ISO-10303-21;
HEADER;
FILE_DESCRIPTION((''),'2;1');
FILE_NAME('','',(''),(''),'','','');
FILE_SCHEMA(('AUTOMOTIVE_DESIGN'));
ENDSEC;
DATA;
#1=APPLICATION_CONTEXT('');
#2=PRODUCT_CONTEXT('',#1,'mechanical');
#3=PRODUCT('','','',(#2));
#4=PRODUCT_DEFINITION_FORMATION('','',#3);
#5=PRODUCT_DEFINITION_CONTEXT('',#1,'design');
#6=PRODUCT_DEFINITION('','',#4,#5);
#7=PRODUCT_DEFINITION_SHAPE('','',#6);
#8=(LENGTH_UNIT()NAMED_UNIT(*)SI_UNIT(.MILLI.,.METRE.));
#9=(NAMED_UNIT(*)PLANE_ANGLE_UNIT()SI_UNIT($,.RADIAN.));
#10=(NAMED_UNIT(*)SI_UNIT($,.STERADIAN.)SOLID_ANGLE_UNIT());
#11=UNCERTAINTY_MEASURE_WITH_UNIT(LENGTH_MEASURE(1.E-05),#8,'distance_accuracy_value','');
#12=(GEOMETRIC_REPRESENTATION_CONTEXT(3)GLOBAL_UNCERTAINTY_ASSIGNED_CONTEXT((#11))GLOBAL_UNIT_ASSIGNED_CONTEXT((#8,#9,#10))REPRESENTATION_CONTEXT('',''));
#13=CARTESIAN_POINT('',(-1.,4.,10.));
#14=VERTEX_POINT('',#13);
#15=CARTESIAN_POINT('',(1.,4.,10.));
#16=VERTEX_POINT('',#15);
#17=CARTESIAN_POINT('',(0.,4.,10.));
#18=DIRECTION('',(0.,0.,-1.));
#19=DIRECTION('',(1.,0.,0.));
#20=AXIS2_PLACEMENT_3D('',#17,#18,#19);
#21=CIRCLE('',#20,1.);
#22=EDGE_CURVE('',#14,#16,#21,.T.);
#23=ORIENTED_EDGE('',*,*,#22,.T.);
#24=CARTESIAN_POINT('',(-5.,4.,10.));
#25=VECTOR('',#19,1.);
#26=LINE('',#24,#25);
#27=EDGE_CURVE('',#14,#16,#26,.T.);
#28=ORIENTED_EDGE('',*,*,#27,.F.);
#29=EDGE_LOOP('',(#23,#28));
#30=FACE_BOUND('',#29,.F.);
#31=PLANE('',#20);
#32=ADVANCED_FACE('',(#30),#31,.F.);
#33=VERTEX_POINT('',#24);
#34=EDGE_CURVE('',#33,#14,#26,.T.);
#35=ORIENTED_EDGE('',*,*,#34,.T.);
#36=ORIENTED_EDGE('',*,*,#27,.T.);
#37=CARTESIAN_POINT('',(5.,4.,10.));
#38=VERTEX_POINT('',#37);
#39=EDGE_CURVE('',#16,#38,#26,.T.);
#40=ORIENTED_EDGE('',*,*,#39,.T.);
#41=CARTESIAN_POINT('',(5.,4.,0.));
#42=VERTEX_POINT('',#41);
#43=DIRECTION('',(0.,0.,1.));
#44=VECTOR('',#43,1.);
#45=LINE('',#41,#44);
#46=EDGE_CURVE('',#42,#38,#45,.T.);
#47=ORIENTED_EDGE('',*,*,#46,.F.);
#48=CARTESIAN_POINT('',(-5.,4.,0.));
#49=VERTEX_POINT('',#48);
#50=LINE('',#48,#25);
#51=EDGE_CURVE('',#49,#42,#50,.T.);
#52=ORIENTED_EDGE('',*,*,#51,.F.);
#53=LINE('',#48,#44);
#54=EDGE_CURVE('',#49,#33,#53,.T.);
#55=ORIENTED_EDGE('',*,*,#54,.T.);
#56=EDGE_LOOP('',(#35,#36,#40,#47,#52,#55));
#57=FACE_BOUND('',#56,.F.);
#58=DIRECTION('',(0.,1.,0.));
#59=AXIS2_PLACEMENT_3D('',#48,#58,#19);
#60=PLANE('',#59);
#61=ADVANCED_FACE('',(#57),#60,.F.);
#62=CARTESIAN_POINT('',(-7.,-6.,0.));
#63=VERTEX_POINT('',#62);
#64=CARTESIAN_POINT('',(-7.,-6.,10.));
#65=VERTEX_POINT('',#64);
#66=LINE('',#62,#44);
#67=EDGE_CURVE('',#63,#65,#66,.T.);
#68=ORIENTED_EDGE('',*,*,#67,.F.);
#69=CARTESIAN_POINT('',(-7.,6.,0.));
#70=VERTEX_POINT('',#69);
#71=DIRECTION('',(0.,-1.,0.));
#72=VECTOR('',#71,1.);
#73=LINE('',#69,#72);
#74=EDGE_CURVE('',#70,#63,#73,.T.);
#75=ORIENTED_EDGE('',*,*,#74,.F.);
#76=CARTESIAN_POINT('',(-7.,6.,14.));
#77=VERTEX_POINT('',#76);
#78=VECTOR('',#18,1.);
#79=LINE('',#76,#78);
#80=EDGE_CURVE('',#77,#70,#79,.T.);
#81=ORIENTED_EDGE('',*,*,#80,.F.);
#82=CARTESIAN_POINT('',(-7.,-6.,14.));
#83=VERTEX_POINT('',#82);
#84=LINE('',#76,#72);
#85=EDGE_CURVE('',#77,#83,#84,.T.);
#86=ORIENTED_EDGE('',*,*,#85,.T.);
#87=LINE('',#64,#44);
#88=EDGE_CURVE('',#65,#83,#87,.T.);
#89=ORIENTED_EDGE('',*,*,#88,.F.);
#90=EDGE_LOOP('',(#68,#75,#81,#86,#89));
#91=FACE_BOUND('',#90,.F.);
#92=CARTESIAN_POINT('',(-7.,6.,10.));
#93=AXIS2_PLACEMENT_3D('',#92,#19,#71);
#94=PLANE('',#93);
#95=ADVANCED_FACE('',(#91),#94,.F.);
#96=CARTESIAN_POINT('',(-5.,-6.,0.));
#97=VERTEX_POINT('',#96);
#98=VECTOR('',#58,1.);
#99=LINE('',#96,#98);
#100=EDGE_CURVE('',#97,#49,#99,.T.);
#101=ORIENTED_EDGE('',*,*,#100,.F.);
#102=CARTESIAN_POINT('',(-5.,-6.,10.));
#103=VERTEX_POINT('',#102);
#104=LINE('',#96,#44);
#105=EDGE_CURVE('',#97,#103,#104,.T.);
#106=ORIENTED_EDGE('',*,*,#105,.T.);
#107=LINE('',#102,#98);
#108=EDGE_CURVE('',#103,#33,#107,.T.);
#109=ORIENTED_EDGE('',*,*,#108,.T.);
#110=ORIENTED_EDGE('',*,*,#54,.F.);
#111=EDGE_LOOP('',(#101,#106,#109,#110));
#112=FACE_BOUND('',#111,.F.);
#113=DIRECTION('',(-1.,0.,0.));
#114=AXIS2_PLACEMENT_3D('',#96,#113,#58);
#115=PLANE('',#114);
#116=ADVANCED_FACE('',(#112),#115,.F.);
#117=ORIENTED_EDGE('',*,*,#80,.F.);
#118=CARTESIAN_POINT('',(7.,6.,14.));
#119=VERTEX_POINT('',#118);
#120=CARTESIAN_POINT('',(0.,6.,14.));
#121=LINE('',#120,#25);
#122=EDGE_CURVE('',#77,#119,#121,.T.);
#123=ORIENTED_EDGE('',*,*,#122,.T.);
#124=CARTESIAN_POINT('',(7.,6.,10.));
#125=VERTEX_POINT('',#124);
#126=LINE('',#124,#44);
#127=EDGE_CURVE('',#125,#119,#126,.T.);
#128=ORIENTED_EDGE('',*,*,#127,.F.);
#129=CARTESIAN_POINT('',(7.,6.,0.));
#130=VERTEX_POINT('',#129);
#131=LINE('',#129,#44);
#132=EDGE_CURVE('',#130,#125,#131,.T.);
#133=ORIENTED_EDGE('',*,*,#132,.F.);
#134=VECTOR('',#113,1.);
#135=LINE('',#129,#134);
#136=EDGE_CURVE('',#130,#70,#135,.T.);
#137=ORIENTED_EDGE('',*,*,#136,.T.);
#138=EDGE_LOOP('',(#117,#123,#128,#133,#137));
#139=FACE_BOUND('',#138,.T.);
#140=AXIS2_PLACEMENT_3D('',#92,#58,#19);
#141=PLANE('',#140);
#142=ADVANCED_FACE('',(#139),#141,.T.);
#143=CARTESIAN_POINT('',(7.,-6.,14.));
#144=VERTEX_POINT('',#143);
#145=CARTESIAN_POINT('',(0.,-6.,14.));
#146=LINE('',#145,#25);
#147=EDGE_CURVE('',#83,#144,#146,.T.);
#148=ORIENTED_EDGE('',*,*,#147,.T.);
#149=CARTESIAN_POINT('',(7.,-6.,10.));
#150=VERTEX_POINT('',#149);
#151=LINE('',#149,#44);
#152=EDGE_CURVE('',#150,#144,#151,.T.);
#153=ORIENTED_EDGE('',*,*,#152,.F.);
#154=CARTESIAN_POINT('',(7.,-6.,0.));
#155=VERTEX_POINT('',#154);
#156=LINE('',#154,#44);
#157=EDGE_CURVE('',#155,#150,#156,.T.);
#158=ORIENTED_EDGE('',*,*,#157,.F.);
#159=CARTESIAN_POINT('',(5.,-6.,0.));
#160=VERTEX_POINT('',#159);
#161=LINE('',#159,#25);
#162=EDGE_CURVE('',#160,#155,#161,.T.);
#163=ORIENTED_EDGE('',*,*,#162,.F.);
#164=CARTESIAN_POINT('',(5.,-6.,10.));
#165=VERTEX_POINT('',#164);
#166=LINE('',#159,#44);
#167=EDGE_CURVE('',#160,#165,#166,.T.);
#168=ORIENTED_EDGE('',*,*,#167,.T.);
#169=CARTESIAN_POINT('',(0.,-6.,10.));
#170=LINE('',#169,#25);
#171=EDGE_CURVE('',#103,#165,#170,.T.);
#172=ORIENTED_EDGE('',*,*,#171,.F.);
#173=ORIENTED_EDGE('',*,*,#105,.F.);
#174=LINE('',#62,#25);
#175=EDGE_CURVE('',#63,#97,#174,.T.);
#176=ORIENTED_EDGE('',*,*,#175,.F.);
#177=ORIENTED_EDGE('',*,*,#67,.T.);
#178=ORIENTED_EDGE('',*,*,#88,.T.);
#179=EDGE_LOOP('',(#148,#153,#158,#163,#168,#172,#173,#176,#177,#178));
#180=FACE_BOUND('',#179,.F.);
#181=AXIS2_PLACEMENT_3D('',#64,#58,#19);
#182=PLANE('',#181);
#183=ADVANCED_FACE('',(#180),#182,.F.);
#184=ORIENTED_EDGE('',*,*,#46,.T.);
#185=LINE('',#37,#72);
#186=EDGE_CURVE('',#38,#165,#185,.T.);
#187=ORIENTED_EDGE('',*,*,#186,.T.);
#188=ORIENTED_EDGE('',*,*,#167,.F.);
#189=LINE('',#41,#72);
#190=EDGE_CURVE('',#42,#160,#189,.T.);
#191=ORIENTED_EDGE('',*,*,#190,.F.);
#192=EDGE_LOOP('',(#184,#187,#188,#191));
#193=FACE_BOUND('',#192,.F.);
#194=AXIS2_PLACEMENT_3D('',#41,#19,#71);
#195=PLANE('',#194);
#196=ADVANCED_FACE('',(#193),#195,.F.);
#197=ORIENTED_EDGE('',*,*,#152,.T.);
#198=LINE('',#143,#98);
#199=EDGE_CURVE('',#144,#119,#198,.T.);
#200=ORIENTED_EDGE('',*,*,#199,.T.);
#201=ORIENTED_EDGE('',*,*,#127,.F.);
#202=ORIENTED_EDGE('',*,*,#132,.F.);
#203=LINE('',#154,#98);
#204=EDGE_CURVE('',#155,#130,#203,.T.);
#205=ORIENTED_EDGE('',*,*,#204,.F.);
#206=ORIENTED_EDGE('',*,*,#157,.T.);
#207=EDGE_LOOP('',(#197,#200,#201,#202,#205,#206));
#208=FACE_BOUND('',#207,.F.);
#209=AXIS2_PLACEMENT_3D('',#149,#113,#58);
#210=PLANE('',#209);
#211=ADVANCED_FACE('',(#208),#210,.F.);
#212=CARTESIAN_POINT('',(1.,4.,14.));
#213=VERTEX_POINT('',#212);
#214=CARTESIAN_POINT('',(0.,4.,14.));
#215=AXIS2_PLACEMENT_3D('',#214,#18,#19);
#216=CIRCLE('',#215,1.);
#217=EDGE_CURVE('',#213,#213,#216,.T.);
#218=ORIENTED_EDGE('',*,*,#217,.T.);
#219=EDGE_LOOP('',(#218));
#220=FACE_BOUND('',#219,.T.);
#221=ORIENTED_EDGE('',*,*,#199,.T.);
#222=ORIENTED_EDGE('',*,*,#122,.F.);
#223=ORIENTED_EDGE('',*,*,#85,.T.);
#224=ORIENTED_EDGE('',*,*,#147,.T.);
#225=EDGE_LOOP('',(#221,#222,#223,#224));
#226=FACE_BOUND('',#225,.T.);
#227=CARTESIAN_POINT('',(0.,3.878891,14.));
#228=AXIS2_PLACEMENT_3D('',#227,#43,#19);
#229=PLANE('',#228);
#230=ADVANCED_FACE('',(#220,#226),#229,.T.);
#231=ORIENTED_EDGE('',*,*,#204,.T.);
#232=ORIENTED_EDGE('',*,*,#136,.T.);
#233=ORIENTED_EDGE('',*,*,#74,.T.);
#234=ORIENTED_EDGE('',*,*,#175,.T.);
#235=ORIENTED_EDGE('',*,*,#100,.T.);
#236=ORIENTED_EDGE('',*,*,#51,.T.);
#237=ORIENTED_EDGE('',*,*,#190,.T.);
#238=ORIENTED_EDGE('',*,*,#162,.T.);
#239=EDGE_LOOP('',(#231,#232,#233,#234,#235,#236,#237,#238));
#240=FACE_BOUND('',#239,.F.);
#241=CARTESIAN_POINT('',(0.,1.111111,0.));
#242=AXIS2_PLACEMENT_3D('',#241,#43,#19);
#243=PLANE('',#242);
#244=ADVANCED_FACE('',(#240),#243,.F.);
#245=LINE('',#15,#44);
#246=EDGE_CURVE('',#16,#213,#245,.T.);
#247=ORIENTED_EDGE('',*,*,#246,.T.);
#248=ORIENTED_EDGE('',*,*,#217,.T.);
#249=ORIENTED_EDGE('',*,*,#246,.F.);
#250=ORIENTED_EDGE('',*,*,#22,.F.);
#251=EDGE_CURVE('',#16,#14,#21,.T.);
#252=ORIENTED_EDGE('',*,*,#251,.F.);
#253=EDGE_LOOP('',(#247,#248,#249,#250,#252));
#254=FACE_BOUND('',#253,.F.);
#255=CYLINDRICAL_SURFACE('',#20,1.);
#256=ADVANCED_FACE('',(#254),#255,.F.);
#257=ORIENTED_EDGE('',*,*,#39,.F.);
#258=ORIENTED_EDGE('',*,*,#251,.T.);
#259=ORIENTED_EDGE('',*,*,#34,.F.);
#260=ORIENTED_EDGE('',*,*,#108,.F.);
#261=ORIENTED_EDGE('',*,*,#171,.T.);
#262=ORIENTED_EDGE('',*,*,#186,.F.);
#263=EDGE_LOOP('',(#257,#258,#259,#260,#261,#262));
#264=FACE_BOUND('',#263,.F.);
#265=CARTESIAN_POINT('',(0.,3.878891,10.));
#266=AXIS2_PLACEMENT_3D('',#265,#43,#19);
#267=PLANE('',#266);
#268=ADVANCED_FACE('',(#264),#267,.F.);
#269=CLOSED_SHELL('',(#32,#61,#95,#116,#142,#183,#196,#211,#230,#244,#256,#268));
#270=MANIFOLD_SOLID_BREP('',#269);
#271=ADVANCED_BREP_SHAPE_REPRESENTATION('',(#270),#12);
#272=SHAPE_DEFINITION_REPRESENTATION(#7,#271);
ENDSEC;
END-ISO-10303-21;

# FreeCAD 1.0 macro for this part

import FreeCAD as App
import Part
import Sketcher

V = App.Vector
Q = App.Units.Quantity

doc = App.newDocument("Part")
body = doc.addObject("PartDesign::Body", "Body")

# Sketch on XY plane
sketch1 = body.newObject("Sketcher::SketchObject", "Sketch")
sketch1.AttachmentSupport = (doc.getObject("XY_Plane"), [""])
sketch1.MapMode = "FlatFace"
sketch1.addGeometry([
    Part.LineSegment(V(7, 6, 0), V(-7, 6, 0)),  # 0
    Part.LineSegment(V(-7, 6, 0), V(-7, -6, 0)),  # 1
    Part.LineSegment(V(-7, -6, 0), V(-5, -6, 0)),  # 2
    Part.LineSegment(V(-5, -6, 0), V(-5, 4, 0)),  # 3
    Part.LineSegment(V(-5, 4, 0), V(5, 4, 0)),  # 4
    Part.LineSegment(V(5, 4, 0), V(5, -6, 0)),  # 5
    Part.LineSegment(V(5, -6, 0), V(7, -6, 0)),  # 6
    Part.LineSegment(V(7, -6, 0), V(7, 6, 0)),  # 7
], False)
sketch1.addConstraint([
    Sketcher.Constraint("Coincident", 0, 2, 1, 1),
    Sketcher.Constraint("Coincident", 1, 2, 2, 1),
    Sketcher.Constraint("Coincident", 2, 2, 3, 1),
    Sketcher.Constraint("Coincident", 3, 2, 4, 1),
    Sketcher.Constraint("Coincident", 4, 2, 5, 1),
    Sketcher.Constraint("Coincident", 5, 2, 6, 1),
    Sketcher.Constraint("Coincident", 6, 2, 7, 1),
    Sketcher.Constraint("Coincident", 7, 2, 0, 1),
    Sketcher.Constraint("Horizontal", 0),
    Sketcher.Constraint("Vertical", 1),
    Sketcher.Constraint("Horizontal", 2),
    Sketcher.Constraint("Vertical", 3),
    Sketcher.Constraint("Horizontal", 4),
    Sketcher.Constraint("Vertical", 5),
    Sketcher.Constraint("Horizontal", 6),
    Sketcher.Constraint("Vertical", 7),
    Sketcher.Constraint("Symmetric", 0, 2, 6, 2, -1, 1),
    Sketcher.Constraint("Symmetric", 2, 2, 5, 2, -2),
    Sketcher.Constraint("Equal", 4, 3),
    Sketcher.Constraint("DistanceX", 0, 2, 0, 1, Q("14 mm")),
    Sketcher.Constraint("DistanceX", 2, 1, 2, 2, Q("2 mm")),
    Sketcher.Constraint("DistanceY", 1, 2, 1, 1, Q("12 mm")),
])
pad1 = body.newObject("PartDesign::Pad", "Pad")
pad1.Profile = sketch1
pad1.Length = 10

# Sketch on XY plane
sketch2 = body.newObject("Sketcher::SketchObject", "Sketch001")
sketch2.AttachmentSupport = (doc.getObject("XY_Plane"), [""])
sketch2.MapMode = "FlatFace"
sketch2.AttachmentOffset = App.Placement(V(0, 0, 10), App.Rotation())
sketch2.addGeometry([
    Part.LineSegment(V(-7, 6, 0), V(-7, -6, 0)),
    Part.LineSegment(V(-7, -6, 0), V(7, -6, 0)),
    Part.LineSegment(V(7, -6, 0), V(7, 6, 0)),
    Part.LineSegment(V(7, 6, 0), V(-7, 6, 0)),
], False)
sketch2.addConstraint([
    Sketcher.Constraint("Coincident", 0, 2, 1, 1),
    Sketcher.Constraint("Coincident", 1, 2, 2, 1),
    Sketcher.Constraint("Coincident", 2, 2, 3, 1),
    Sketcher.Constraint("Coincident", 3, 2, 0, 1),
    Sketcher.Constraint("Vertical", 0),
    Sketcher.Constraint("Horizontal", 1),
    Sketcher.Constraint("Vertical", 2),
    Sketcher.Constraint("Horizontal", 3),
    Sketcher.Constraint("Symmetric", 0, 2, 2, 2, -1, 1),
    Sketcher.Constraint("DistanceX", 1, 1, 1, 2, Q("14 mm")),
    Sketcher.Constraint("DistanceY", 0, 2, 0, 1, Q("12 mm")),
])
pad2 = body.newObject("PartDesign::Pad", "Pad001")
pad2.Profile = sketch2
pad2.Length = 4

# Sketch on XY plane
sketch3 = body.newObject("Sketcher::SketchObject", "Sketch002")
sketch3.AttachmentSupport = (doc.getObject("XY_Plane"), [""])
sketch3.MapMode = "FlatFace"
sketch3.AttachmentOffset = App.Placement(V(0, 0, 10), App.Rotation())
sketch3.addGeometry(Part.Circle(V(0, 4, 0), V(0, 0, 1), 1), False)
sketch3.addConstraint([
    Sketcher.Constraint("PointOnObject", 0, 3, -2),
    Sketcher.Constraint("Diameter", 0, Q("2 mm")),
    Sketcher.Constraint("DistanceY", -1, 1, 0, 3, Q("4 mm")),
])
pocket1 = body.newObject("PartDesign::Pocket", "Pocket")
pocket1.Profile = sketch3
pocket1.Type = "ThroughAll"
pocket1.Reversed = True

doc.recompute()
